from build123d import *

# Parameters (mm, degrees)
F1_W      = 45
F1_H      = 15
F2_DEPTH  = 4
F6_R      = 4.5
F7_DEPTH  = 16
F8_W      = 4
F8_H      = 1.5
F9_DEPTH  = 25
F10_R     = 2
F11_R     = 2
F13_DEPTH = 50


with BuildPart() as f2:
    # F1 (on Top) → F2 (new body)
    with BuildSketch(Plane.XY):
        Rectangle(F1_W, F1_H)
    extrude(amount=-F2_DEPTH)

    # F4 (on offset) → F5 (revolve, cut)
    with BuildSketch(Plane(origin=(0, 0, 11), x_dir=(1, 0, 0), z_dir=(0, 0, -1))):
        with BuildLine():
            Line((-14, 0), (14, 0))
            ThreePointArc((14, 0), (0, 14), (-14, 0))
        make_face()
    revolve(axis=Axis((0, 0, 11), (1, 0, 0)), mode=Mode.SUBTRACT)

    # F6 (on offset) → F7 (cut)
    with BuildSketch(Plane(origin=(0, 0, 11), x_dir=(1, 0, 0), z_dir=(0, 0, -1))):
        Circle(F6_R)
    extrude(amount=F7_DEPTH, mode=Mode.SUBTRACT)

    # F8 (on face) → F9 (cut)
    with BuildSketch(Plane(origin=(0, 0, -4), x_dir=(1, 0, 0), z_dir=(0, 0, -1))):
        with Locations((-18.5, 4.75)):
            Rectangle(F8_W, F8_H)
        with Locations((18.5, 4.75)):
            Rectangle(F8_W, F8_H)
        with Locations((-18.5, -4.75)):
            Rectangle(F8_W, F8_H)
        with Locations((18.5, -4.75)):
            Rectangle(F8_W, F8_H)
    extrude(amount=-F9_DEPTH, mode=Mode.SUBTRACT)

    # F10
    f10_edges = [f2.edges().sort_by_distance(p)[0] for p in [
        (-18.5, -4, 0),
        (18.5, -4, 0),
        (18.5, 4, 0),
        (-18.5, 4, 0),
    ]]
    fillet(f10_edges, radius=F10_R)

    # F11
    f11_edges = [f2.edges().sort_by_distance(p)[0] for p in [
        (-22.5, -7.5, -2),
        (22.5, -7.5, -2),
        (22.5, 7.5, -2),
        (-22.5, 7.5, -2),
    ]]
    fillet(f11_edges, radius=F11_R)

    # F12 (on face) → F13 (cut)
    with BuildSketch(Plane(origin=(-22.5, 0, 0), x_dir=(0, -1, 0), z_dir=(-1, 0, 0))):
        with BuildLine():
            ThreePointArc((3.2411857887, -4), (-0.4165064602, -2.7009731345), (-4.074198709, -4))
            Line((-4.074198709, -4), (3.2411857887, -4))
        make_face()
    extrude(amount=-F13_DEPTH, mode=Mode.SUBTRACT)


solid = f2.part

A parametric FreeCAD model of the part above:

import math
import FreeCAD as App
import Part
import Sketcher

V = App.Vector


def edges_at(feature, points):
    """Names of the edges that pass closest to the given points."""
    edges = feature.Shape.Edges
    near = lambda p: min(range(len(edges)), key=lambda i: edges[i].distToShape(Part.Vertex(*p))[0])
    return sorted({f"Edge{near(p) + 1}" for p in points})


def add_polygon(sketch, points):
    """Adds a closed chain of lines whose ends are joined by coincident constraints."""
    first, n = sketch.GeometryCount, len(points)
    for a, b in zip(points, points[1:] + points[:1]):
        sketch.addGeometry(Part.LineSegment(App.Vector(*a, 0), App.Vector(*b, 0)), False)
    for i in range(n):
        sketch.addConstraint(Sketcher.Constraint("Coincident", first + i, 2, first + (i + 1) % n, 1))

doc = App.newDocument("Part")
body = doc.addObject("PartDesign::Body", "Body")

# Sketch on XY plane
sketch1 = body.newObject("Sketcher::SketchObject", "Sketch")
sketch1.AttachmentSupport = (doc.getObject("XY_Plane"), [""])
sketch1.MapMode = "FlatFace"
add_polygon(sketch1, [(-22, 8), (-22, -8), (22, -8), (22, 8)])  # lines 0-3
sketch1.addConstraint([
    Sketcher.Constraint("Vertical", 0),
    Sketcher.Constraint("Horizontal", 1),
    Sketcher.Constraint("Vertical", 2),
    Sketcher.Constraint("Horizontal", 3),
    Sketcher.Constraint("Symmetric", 0, 2, 2, 2, -1, 1),
    Sketcher.Constraint("DistanceX", 1, 1, 1, 2, 45.0),
    Sketcher.Constraint("DistanceY", 0, 2, 0, 1, 15.0),
])
pad1 = body.newObject("PartDesign::Pad", "Pad")
pad1.Profile = sketch1
pad1.Length = 4
pad1.Reversed = True

# Sketch on XY plane
sketch2 = body.newObject("Sketcher::SketchObject", "Sketch001")
sketch2.AttachmentSupport = (doc.getObject("XY_Plane"), [""])
sketch2.MapMode = "FlatFace"
sketch2.AttachmentOffset = App.Placement(V(0, 0, 11), App.Rotation())
sketch2.addGeometry([
    Part.LineSegment(V(-14, 0, 0), V(14, 0, 0)),
    Part.ArcOfCircle(Part.Circle(V(0, 0, 0), V(0, 0, 1), 14), math.radians(180), math.radians(360)),
], False)
sketch2.addConstraint([
    Sketcher.Constraint("Coincident", 0, 1, 1, 1),
    Sketcher.Constraint("Coincident", 1, 2, 0, 2),
    Sketcher.Constraint("Horizontal", 0),
    Sketcher.Constraint("Coincident", 1, 3, -1, 1),
    Sketcher.Constraint("PointOnObject", 0, 1, -1),
    Sketcher.Constraint("Radius", 1, 14.0),
])
groove = body.newObject("PartDesign::Groove", "Groove")
groove.Profile = sketch2
groove.ReferenceAxis = (sketch2, ["H_Axis"])
groove.Angle = 360

# Sketch on XY plane
sketch3 = body.newObject("Sketcher::SketchObject", "Sketch002")
sketch3.AttachmentSupport = (doc.getObject("XY_Plane"), [""])
sketch3.MapMode = "FlatFace"
sketch3.AttachmentOffset = App.Placement(V(0, 0, 11), App.Rotation())
sketch3.addGeometry(Part.Circle(V(0, 0, 0), V(0, 0, 1), 4.5), False)
sketch3.addConstraint([
    Sketcher.Constraint("Coincident", 0, 3, -1, 1),
    Sketcher.Constraint("Diameter", 0, 9.0),
])
pocket1 = body.newObject("PartDesign::Pocket", "Pocket")
pocket1.Profile = sketch3
pocket1.Length = 16

# Sketch on XY plane
sketch4 = body.newObject("Sketcher::SketchObject", "Sketch003")
sketch4.AttachmentSupport = (doc.getObject("XY_Plane"), [""])
sketch4.MapMode = "FlatFace"
sketch4.AttachmentOffset = App.Placement(V(0, 0, -4), App.Rotation())
add_polygon(sketch4, [(-20.5, -5.5), (-20.5, -4), (-16.5, -4), (-16.5, -5.5)])  # lines 0-3
add_polygon(sketch4, [(16.5, -5.5), (16.5, -4), (20.5, -4), (20.5, -5.5)])  # lines 4-7
add_polygon(sketch4, [(-20.5, 4), (-20.5, 5.5), (-16.5, 5.5), (-16.5, 4)])  # lines 8-11
add_polygon(sketch4, [(16.5, 4), (16.5, 5.5), (20.5, 5.5), (20.5, 4)])  # lines 12-15
sketch4.addConstraint([
    Sketcher.Constraint("Vertical", 0),
    Sketcher.Constraint("Horizontal", 1),
    Sketcher.Constraint("Vertical", 2),
    Sketcher.Constraint("Horizontal", 3),
    Sketcher.Constraint("Vertical", 4),
    Sketcher.Constraint("Horizontal", 5),
    Sketcher.Constraint("Vertical", 6),
    Sketcher.Constraint("Horizontal", 7),
    Sketcher.Constraint("Vertical", 8),
    Sketcher.Constraint("Horizontal", 9),
    Sketcher.Constraint("Vertical", 10),
    Sketcher.Constraint("Horizontal", 11),
    Sketcher.Constraint("Vertical", 12),
    Sketcher.Constraint("Horizontal", 13),
    Sketcher.Constraint("Vertical", 14),
    Sketcher.Constraint("Horizontal", 15),
    Sketcher.Constraint("Symmetric", 6, 2, 8, 2, -1, 1),
    Sketcher.Constraint("Symmetric", 4, 2, 10, 2, -1, 1),
    Sketcher.Constraint("Symmetric", 2, 2, 12, 2, -1, 1),
    Sketcher.Constraint("Symmetric", 0, 2, 14, 2, -1, 1),
    Sketcher.Constraint("Symmetric", 1, 2, 4, 2, -2),
    Sketcher.Constraint("Symmetric", 3, 2, 6, 2, -2),
    Sketcher.Constraint("DistanceX", 1, 1, 1, 2, 4.0),
    Sketcher.Constraint("DistanceY", 0, 1, 0, 2, 1.5),
    Sketcher.Constraint("DistanceY", 0, 2, -1, 1, 4.0),
    Sketcher.Constraint("DistanceX", 1, 2, 4, 2, 33.0),
])
pocket2 = body.newObject("PartDesign::Pocket", "Pocket001")
pocket2.Profile = sketch4
pocket2.Length = 25
pocket2.Reversed = True
doc.recompute()

fillet = body.newObject("PartDesign::Fillet", "Fillet")
fillet.Base = (pocket2, edges_at(pocket2, [
    (-18.5, -4, 0),
    (18.5, -4, 0),
    (18.5, 4, 0),
    (-18.5, 4, 0),
]))
fillet.Radius = 2
doc.recompute()

fillet2 = body.newObject("PartDesign::Fillet", "Fillet001")
fillet2.Base = (fillet, edges_at(fillet, [
    (-22.5, -7.5, -2),
    (22.5, -7.5, -2),
    (22.5, 7.5, -2),
    (-22.5, 7.5, -2),
]))
fillet2.Radius = 2

# Sketch on YZ plane
sketch5 = body.newObject("Sketcher::SketchObject", "Sketch004")
sketch5.AttachmentSupport = (doc.getObject("YZ_Plane"), [""])
sketch5.MapMode = "FlatFace"
sketch5.AttachmentOffset = App.Placement(V(0, 0, -22.5), App.Rotation())
sketch5.addGeometry([
    Part.ArcOfCircle(Part.Circle(V(0, -8, 0), V(0, 0, 1), 6), math.radians(51), math.radians(129)),
    Part.LineSegment(V(4, -4, 0), V(-3, -4, 0)),
], False)
sketch5.addConstraint([
    Sketcher.Constraint("Coincident", 0, 1, 1, 1),
    Sketcher.Constraint("Coincident", 1, 2, 0, 2),
    Sketcher.Constraint("Horizontal", 1),
    Sketcher.Constraint("DistanceY", 0, 1, -1, 1, 4.0),
    Sketcher.Constraint("DistanceY", 0, 3, -1, 1, 8.5),
    Sketcher.Constraint("Radius", 0, 5.799027),
    Sketcher.Constraint("DistanceX", -1, 1, 0, 1, 4.074199),
])
pocket3 = body.newObject("PartDesign::Pocket", "Pocket002")
pocket3.Profile = sketch5
pocket3.Length = 50
pocket3.Reversed = True

doc.recompute()
